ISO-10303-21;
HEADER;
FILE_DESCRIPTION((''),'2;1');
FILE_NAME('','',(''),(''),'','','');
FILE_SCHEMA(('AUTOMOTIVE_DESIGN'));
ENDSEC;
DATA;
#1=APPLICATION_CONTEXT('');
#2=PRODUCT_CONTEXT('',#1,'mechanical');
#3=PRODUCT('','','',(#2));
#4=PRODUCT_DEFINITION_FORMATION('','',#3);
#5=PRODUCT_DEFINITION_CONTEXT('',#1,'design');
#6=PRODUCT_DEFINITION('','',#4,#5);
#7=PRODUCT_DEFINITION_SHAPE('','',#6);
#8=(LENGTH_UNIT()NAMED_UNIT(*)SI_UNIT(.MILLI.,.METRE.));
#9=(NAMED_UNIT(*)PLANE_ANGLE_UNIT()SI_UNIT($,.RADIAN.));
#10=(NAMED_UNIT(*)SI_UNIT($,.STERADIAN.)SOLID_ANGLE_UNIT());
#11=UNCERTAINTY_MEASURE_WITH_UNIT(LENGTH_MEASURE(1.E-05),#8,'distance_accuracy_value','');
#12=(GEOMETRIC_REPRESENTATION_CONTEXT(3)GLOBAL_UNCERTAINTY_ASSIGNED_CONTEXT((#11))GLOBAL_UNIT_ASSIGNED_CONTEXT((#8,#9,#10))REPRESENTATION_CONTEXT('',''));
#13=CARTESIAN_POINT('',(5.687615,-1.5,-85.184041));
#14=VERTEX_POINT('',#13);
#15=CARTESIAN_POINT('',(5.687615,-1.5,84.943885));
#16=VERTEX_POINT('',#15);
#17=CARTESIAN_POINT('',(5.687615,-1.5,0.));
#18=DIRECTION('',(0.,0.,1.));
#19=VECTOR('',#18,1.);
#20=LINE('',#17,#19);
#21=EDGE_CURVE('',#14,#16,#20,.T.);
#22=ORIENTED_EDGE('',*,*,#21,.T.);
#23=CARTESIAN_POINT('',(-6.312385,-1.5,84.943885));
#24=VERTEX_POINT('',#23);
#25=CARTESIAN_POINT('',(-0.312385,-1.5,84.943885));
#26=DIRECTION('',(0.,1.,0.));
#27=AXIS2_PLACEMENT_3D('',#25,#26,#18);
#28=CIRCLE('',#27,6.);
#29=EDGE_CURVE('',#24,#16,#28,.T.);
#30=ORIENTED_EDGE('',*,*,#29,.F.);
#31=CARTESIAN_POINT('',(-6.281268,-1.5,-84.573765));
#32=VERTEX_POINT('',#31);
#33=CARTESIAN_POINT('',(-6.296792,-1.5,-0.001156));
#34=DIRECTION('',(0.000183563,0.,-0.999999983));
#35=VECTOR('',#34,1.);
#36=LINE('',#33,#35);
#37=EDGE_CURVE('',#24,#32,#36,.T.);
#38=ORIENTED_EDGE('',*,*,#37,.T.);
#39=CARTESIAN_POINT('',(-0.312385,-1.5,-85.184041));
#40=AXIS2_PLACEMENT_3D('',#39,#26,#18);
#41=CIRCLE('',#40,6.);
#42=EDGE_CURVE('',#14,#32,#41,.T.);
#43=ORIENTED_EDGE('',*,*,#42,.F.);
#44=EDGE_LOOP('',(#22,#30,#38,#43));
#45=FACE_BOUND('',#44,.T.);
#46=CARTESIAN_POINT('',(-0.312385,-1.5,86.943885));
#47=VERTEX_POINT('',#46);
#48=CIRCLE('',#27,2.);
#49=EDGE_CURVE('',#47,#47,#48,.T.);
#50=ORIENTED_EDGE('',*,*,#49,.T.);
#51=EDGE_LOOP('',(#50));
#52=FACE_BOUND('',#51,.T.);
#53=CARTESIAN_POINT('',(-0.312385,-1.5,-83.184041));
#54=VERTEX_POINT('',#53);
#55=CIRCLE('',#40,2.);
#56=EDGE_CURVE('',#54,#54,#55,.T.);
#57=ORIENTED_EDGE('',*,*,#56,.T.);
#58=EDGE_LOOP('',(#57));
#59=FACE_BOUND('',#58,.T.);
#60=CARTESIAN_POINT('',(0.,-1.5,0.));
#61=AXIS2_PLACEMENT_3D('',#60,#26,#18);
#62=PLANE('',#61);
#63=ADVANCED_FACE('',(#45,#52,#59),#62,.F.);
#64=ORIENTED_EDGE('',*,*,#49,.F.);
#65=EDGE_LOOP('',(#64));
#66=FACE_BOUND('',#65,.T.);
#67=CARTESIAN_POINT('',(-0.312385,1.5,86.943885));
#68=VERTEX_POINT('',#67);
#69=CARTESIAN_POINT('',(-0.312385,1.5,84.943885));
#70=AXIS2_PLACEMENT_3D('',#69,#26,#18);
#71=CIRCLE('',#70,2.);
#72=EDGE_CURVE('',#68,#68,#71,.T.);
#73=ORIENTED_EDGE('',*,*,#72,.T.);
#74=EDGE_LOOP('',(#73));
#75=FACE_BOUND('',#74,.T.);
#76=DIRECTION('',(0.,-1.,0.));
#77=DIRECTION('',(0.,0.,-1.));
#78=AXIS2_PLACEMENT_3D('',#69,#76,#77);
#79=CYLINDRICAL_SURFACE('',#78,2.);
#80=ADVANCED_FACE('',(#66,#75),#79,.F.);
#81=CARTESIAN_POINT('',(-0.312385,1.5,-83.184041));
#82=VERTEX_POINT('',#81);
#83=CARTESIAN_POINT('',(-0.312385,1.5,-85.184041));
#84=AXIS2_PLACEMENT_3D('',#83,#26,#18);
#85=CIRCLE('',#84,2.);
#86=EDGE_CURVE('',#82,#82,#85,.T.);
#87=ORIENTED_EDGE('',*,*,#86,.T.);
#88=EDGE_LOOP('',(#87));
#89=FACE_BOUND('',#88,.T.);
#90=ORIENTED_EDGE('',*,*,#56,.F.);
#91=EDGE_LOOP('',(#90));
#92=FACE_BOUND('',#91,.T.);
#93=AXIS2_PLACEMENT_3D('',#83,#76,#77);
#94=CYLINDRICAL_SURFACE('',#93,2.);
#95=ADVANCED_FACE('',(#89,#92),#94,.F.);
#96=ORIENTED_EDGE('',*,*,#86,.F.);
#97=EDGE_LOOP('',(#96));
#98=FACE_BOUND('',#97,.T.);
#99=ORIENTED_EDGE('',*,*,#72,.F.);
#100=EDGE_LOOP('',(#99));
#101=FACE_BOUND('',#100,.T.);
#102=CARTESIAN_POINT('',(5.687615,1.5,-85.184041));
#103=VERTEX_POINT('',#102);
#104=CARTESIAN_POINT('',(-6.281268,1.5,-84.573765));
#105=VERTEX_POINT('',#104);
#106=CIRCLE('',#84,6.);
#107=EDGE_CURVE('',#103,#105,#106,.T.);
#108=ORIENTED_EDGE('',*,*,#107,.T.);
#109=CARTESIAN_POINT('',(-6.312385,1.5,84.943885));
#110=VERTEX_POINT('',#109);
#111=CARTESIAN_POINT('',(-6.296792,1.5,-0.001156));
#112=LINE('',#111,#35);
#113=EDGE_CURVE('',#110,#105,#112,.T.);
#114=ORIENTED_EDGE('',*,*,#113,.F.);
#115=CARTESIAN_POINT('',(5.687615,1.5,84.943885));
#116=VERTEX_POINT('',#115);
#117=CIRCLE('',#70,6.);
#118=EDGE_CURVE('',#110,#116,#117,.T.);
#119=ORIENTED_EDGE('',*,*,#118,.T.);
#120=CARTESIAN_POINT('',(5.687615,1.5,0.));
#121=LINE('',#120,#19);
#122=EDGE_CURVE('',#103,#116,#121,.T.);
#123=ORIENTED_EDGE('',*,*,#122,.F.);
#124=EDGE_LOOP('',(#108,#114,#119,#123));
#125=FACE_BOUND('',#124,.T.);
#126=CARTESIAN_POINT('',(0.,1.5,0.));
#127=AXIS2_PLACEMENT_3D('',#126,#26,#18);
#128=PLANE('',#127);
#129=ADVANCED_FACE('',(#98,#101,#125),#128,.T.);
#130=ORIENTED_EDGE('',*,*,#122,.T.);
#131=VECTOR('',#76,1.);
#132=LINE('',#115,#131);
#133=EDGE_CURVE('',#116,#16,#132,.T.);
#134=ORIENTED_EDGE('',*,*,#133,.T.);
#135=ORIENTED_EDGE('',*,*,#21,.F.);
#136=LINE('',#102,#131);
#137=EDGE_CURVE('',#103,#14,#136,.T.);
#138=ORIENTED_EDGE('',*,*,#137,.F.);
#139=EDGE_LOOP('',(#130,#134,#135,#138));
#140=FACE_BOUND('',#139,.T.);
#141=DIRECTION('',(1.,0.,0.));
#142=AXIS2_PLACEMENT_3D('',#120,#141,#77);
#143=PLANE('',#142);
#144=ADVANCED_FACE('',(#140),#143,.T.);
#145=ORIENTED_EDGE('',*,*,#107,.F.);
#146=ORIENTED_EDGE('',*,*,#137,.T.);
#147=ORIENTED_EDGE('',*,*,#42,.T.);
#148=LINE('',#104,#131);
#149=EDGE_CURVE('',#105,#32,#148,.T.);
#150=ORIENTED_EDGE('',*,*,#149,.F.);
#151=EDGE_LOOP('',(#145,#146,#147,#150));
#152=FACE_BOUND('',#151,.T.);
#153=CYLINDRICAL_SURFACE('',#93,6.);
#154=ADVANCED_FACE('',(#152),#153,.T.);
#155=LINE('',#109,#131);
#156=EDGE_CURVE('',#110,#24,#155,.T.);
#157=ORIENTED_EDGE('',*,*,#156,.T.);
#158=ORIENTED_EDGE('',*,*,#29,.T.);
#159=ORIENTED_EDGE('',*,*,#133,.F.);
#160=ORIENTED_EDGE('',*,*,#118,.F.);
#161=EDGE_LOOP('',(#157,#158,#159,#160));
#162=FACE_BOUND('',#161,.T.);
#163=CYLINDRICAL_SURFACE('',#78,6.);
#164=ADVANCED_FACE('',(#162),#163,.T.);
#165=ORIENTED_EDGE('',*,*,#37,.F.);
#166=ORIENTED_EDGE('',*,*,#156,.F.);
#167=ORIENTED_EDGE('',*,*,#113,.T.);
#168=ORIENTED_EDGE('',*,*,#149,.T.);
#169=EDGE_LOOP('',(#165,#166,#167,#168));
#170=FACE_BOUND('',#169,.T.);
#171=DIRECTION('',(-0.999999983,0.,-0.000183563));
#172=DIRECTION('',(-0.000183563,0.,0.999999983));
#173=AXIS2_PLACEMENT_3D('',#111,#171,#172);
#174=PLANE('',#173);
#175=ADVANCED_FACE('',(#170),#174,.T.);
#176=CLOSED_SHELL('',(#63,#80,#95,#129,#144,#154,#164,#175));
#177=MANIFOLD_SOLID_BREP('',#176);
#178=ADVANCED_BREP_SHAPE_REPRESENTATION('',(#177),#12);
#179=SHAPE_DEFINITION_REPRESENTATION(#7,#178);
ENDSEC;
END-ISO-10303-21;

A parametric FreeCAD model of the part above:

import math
import FreeCAD as App
import Part
import Sketcher
from FreeCAD import Vector
Q = App.Units.Quantity

doc = App.newDocument("Part")
body = doc.addObject("PartDesign::Body", "Body")

# Sketch on XZ plane
sketch1 = body.newObject("Sketcher::SketchObject", "Sketch")
sketch1.AttachmentSupport = (doc.getObject("XZ_Plane"), [""])
sketch1.MapMode = "FlatFace"
sketch1.addGeometry([
    Part.LineSegment(Vector(-6.3124, 84.9417, 0), Vector(-6.3124, 84.9439, 0)),  # 0
    Part.ArcOfCircle(Part.Circle(Vector(-0.3124, 84.9439, 0), Vector(0, 0, 1), 6), math.radians(0), math.radians(180)),  # 1
    Part.LineSegment(Vector(5.6876, 84.9439, 0), Vector(5.6876, -85.184, 0)),  # 2
    Part.ArcOfCircle(Part.Circle(Vector(-0.3124, -85.184, 0), Vector(0, 0, 1), 6), math.radians(174), math.radians(360)),  # 3
    Part.LineSegment(Vector(-6.2813, -84.5738, 0), Vector(-6.3124, 84.9417, 0)),  # 4
    Part.Circle(Vector(-0.3124, 84.9439, 0), Vector(0, 0, 1), 2),  # 5
    Part.Circle(Vector(-0.3124, -85.184, 0), Vector(0, 0, 1), 2),  # 6
], False)
sketch1.addConstraint([
    Sketcher.Constraint("Coincident", 0, 2, 1, 2),
    Sketcher.Constraint("Tangent", 1, 1, 2, 1),
    Sketcher.Constraint("Tangent", 2, 2, 3, 2),
    Sketcher.Constraint("Coincident", 3, 1, 4, 1),
    Sketcher.Constraint("Coincident", 4, 2, 0, 1),
    Sketcher.Constraint("Vertical", 0),
    Sketcher.Constraint("Vertical", 2),
    Sketcher.Constraint("Coincident", 5, 3, 1, 3),
    Sketcher.Constraint("Coincident", 6, 3, 3, 3),
    Sketcher.Constraint("Equal", 1, 3),
    Sketcher.Constraint("Equal", 5, 6),
    Sketcher.Constraint("Horizontal", 5, 3, 0, 2),
    Sketcher.Constraint("Diameter", 5, Q("4 mm")),
    Sketcher.Constraint("Radius", 1, Q("6 mm")),
    Sketcher.Constraint("Distance", 4, Q("169.51545 mm")),
    Sketcher.Constraint("DistanceY", 0, 1, 0, 2, Q("0.002203 mm")),
    Sketcher.Constraint("DistanceY", 2, 2, 2, 1, Q("170.127926 mm")),
    Sketcher.Constraint("DistanceY", 3, 3, -1, 1, Q("85.184041 mm")),
    Sketcher.Constraint("DistanceX", 1, 3, -1, 1, Q("0.312385 mm")),
])
pad1 = body.newObject("PartDesign::Pad", "Pad")
pad1.Profile = sketch1
pad1.Length = 3
pad1.Midplane = True

doc.recompute()
